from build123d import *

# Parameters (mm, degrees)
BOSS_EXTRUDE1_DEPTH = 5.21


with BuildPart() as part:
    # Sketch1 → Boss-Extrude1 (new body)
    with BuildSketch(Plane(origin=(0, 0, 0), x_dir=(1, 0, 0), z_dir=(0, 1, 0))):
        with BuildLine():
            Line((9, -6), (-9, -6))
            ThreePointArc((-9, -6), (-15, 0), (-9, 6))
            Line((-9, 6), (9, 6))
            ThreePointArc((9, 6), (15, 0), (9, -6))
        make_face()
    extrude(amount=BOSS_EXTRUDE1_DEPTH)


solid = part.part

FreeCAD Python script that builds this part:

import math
import FreeCAD as App
import Part
import Sketcher
Q = App.Units.Quantity

doc = App.newDocument("Part")
body = doc.addObject("PartDesign::Body", "Body")

# Sketch on XZ plane
sketch1 = body.newObject("Sketcher::SketchObject", "Sketch")
sketch1.AttachmentSupport = (doc.getObject("XZ_Plane"), [""])
sketch1.MapMode = "FlatFace"
sketch1.addGeometry(Part.LineSegment(App.Vector(-9, 6, 0), App.Vector(9, 6, 0)), False)
sketch1.addGeometry(Part.ArcOfCircle(Part.Circle(App.Vector(9, 0, 0), App.Vector(0, 0, 1), 6), math.radians(-90), math.radians(90)), False)
sketch1.addGeometry(Part.LineSegment(App.Vector(9, -6, 0), App.Vector(-9, -6, 0)), False)
sketch1.addGeometry(Part.ArcOfCircle(Part.Circle(App.Vector(-9, 0, 0), App.Vector(0, 0, 1), 6), math.radians(90), math.radians(270)), False)
sketch1.addConstraint(Sketcher.Constraint("Tangent", 0, 2, 1, 2))
sketch1.addConstraint(Sketcher.Constraint("Tangent", 1, 1, 2, 1))
sketch1.addConstraint(Sketcher.Constraint("Tangent", 2, 2, 3, 2))
sketch1.addConstraint(Sketcher.Constraint("Tangent", 3, 1, 0, 1))
sketch1.addConstraint(Sketcher.Constraint("Horizontal", 0))
sketch1.addConstraint(Sketcher.Constraint("Horizontal", 2))
sketch1.addConstraint(Sketcher.Constraint("Symmetric", 1, 3, 3, 3, -1, 1))
sketch1.addConstraint(Sketcher.Constraint("Radius", 1, Q("6 mm")))
sketch1.addConstraint(Sketcher.Constraint("DistanceX", 0, 1, 0, 2, Q("18 mm")))
pad1 = body.newObject("PartDesign::Pad", "Pad")
pad1.Profile = sketch1
pad1.Length = 5.21
pad1.Reversed = True

doc.recompute()
